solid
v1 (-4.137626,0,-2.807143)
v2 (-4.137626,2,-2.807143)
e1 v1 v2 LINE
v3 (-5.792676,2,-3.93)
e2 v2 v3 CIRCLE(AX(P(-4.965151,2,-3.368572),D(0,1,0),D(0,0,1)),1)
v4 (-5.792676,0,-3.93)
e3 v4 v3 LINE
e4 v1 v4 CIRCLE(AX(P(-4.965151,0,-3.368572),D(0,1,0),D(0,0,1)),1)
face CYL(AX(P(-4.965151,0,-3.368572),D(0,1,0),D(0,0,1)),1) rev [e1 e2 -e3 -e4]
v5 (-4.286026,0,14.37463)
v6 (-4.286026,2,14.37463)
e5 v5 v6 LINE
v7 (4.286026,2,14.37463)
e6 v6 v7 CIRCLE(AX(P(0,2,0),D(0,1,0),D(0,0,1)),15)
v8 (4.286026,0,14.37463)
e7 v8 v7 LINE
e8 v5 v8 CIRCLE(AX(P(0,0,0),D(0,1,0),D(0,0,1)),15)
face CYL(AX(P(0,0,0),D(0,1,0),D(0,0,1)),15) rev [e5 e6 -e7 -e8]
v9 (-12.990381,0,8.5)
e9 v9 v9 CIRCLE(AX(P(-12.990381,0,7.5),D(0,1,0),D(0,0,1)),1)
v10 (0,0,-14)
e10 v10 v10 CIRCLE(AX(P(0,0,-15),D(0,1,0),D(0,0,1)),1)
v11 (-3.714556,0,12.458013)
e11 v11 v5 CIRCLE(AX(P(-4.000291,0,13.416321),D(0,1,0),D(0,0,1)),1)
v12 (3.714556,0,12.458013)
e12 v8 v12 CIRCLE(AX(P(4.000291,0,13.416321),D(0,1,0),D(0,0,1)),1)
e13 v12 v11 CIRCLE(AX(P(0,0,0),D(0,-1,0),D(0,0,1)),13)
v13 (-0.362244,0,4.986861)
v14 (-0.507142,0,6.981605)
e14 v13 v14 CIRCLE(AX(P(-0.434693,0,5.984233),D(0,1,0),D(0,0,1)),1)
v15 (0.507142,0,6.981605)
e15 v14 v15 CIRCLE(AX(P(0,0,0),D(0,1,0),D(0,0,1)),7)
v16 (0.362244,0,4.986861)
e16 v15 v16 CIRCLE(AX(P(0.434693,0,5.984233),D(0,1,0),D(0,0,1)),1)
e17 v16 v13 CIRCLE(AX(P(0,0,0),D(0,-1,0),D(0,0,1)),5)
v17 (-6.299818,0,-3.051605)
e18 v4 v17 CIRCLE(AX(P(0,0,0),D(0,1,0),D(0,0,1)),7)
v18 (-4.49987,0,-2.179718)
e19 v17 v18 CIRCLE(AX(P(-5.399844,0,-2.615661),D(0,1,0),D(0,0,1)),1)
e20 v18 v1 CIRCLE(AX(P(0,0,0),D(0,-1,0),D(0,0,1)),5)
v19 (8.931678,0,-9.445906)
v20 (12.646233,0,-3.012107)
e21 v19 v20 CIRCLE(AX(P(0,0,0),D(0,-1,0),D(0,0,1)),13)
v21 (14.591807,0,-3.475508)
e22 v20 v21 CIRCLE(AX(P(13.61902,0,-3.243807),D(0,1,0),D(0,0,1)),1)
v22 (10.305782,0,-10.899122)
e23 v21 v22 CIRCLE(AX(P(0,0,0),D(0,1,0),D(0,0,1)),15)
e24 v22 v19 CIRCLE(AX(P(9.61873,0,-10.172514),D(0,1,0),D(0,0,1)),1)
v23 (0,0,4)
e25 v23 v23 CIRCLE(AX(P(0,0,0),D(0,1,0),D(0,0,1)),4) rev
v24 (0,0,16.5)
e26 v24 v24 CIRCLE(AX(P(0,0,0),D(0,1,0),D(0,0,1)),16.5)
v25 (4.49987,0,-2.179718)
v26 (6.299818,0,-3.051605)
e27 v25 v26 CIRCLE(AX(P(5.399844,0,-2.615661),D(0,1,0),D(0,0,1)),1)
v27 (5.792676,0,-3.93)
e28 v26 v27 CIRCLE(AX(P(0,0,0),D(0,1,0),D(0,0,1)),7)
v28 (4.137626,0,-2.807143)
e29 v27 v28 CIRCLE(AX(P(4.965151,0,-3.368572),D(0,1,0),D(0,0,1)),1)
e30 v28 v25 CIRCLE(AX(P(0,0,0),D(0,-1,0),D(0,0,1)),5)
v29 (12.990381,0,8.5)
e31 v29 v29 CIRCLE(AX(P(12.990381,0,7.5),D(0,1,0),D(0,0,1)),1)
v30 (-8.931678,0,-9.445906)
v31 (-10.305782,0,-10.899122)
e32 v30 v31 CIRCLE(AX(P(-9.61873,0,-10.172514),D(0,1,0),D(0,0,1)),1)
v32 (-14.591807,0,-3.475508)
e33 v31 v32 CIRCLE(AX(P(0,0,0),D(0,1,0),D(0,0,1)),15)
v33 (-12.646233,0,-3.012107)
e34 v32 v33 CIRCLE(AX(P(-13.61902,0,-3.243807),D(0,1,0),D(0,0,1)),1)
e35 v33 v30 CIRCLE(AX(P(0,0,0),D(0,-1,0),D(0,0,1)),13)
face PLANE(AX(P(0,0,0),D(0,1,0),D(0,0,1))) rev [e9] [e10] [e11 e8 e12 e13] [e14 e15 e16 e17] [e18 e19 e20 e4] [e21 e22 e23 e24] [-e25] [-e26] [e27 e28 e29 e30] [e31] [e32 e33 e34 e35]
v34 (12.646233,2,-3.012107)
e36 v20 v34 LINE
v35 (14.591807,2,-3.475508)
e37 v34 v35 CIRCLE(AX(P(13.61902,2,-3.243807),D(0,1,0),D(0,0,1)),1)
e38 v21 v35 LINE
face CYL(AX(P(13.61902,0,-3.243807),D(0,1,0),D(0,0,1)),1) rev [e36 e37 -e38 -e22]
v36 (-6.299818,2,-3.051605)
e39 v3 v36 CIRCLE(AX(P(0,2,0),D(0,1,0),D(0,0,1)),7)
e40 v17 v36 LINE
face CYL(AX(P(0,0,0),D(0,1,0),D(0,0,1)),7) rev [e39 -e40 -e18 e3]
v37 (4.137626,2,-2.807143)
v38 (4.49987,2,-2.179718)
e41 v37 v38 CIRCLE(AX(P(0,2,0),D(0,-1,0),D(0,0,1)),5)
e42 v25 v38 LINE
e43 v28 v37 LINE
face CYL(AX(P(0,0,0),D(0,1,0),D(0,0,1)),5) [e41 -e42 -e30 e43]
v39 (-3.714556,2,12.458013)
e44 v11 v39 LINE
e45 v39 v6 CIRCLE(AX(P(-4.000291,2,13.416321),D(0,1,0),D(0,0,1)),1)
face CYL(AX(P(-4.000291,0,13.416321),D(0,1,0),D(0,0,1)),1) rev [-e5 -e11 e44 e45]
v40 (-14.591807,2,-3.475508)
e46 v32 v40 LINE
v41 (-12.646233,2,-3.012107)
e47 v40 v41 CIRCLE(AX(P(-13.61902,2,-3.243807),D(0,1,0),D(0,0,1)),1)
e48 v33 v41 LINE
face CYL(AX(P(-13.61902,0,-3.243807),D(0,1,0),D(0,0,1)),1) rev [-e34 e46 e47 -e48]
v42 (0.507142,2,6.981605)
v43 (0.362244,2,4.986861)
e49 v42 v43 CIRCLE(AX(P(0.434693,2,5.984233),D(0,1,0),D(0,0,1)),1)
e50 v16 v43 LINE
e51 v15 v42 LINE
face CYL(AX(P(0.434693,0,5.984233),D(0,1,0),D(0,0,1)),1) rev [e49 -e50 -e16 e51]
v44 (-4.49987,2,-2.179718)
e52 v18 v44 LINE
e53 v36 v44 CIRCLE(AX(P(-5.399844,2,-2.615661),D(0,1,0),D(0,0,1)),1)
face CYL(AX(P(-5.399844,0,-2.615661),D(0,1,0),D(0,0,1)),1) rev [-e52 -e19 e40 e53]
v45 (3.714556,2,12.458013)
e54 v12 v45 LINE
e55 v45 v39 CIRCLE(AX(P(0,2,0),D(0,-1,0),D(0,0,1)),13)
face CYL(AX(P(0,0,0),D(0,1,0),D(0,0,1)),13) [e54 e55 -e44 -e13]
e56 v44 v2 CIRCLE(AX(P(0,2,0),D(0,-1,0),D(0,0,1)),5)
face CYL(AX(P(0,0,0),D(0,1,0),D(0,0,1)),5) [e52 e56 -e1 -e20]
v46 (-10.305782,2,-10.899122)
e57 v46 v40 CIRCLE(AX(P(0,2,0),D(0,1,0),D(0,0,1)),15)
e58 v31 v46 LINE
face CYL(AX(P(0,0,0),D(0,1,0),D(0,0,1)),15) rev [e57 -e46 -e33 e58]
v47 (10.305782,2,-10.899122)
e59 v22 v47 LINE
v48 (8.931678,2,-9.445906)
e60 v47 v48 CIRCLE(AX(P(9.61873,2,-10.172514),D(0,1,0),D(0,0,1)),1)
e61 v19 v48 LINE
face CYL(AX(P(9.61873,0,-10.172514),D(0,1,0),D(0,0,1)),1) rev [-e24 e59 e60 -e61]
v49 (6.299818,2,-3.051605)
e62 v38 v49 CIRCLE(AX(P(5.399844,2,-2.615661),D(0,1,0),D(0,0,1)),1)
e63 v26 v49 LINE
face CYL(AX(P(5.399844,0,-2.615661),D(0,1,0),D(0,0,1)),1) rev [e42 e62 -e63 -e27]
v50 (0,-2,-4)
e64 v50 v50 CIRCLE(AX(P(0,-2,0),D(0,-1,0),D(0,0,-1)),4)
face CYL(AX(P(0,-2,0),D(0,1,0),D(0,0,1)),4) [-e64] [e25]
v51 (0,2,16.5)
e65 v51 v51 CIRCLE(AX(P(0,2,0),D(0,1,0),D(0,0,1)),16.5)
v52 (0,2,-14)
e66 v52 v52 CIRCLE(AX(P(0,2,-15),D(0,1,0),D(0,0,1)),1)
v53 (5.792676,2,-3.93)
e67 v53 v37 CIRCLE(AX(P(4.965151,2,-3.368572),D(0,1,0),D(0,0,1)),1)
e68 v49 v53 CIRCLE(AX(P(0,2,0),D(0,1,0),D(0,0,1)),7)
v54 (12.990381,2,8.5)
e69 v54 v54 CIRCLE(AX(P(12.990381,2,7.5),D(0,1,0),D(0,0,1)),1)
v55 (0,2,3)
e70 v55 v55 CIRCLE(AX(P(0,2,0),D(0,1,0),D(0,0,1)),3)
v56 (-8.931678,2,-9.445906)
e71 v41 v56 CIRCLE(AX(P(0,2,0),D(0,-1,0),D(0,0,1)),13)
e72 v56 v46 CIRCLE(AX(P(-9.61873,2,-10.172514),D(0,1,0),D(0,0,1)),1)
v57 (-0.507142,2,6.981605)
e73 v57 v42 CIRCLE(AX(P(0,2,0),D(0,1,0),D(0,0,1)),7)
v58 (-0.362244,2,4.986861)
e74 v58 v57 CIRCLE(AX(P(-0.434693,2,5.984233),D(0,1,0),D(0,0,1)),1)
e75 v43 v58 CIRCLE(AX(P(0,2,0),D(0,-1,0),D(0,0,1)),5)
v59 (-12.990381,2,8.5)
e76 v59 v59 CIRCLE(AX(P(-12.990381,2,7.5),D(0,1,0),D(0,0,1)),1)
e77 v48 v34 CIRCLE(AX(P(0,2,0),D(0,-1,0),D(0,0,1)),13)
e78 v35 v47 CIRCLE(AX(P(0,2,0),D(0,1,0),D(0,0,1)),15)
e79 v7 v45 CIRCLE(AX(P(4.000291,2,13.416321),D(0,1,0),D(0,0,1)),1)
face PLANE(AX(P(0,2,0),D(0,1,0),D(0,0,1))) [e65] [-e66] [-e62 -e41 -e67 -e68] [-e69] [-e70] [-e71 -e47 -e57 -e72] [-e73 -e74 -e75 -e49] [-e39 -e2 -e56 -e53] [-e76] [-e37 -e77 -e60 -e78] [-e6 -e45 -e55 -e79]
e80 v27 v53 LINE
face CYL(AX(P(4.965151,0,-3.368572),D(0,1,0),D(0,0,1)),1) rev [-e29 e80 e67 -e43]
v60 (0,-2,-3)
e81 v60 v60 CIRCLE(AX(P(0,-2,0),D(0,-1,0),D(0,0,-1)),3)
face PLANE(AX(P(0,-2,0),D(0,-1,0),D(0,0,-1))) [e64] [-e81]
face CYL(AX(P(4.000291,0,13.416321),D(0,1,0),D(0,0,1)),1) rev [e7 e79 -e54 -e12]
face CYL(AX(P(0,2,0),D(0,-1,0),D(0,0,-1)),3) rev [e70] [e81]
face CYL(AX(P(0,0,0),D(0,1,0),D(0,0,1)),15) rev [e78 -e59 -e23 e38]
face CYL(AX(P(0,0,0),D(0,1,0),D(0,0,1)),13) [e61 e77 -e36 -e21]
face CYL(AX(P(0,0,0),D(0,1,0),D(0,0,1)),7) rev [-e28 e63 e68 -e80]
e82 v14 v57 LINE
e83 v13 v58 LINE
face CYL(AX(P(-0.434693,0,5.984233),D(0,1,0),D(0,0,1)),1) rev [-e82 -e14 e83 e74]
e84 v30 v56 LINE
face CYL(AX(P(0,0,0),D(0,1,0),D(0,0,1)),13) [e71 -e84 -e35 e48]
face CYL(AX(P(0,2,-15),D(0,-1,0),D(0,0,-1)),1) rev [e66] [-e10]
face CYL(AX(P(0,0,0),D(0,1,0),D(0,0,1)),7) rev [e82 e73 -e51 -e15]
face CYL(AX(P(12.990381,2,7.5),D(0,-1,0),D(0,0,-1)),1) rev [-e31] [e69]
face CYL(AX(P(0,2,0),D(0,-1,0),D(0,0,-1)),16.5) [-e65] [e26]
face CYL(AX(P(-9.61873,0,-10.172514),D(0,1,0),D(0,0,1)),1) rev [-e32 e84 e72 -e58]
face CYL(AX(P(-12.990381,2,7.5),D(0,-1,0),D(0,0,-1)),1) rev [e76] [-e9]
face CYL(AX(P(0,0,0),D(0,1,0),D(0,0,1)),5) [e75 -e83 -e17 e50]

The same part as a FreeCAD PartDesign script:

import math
import FreeCAD as App
import Part
import Sketcher

doc = App.newDocument("Part")
body = doc.addObject("PartDesign::Body", "Body")

sketch1 = doc.addObject("Sketcher::SketchObject", "Sketch")
body.addObject(sketch1)
sketch1.AttachmentSupport = (doc.XZ_Plane, [""])
sketch1.MapMode = "FlatFace"
sketch1.addGeometry([
    Part.Circle(App.Vector(0, 0, 0), App.Vector(0, 0, 1), 16.5),
    Part.Circle(App.Vector(0, -15, 0), App.Vector(0, 0, 1), 1),
    Part.Circle(App.Vector(-13, 7.5, 0), App.Vector(0, 0, 1), 1),
    Part.Circle(App.Vector(0, 0, 0), App.Vector(0, 0, 1), 3),
    Part.Circle(App.Vector(13, 7.5, 0), App.Vector(0, 0, 1), 1),
], False)
sketch1.addConstraint([
    Sketcher.Constraint("Coincident", 0, 3, -1, 1),
    Sketcher.Constraint("Coincident", 3, 3, -1, 1),
    Sketcher.Constraint("Equal", 1, 2),
    Sketcher.Constraint("Equal", 2, 4),
    Sketcher.Constraint("Symmetric", 2, 3, 4, 3, -2),
    Sketcher.Constraint("PointOnObject", 1, 3, -2),
    Sketcher.Constraint("Diameter", 0, 33.0),
    Sketcher.Constraint("Diameter", 1, 2.0),
    Sketcher.Constraint("Diameter", 3, 6.0),
    Sketcher.Constraint("DistanceY", 1, 3, -1, 1, 15.0),
    Sketcher.Constraint("DistanceY", -1, 1, 2, 3, 7.5),
    Sketcher.Constraint("DistanceX", 2, 3, -1, 1, 12.990381),
])
pad1 = doc.addObject("PartDesign::Pad", "Pad")
body.addObject(pad1)
pad1.Profile = sketch1
pad1.Length = 2
pad1.Reversed = True

sketch2 = doc.addObject("Sketcher::SketchObject", "Sketch001")
body.addObject(sketch2)
sketch2.AttachmentSupport = (doc.XZ_Plane, [""])
sketch2.MapMode = "FlatFace"
sketch2.AttachmentOffset = App.Placement(App.Vector(0, 0, 2), App.Rotation())
sketch2.addGeometry([
    Part.Circle(App.Vector(0, 0, 0), App.Vector(0, 0, 1), 4),
    Part.Circle(App.Vector(0, 0, 0), App.Vector(0, 0, 1), 3),
], False)
sketch2.addConstraint([
    Sketcher.Constraint("Coincident", 0, 3, -1, 1),
    Sketcher.Constraint("Coincident", 1, 3, -1, 1),
    Sketcher.Constraint("Diameter", 0, 8.0),
    Sketcher.Constraint("Diameter", 1, 6.0),
])
pad2 = doc.addObject("PartDesign::Pad", "Pad001")
body.addObject(pad2)
pad2.Profile = sketch2
pad2.Length = 2
pad2.Reversed = True

sketch3 = doc.addObject("Sketcher::SketchObject", "Sketch002")
body.addObject(sketch3)
sketch3.AttachmentSupport = (doc.XZ_Plane, [""])
sketch3.MapMode = "FlatFace"
sketch3.AttachmentOffset = App.Placement(App.Vector(0, 0, -2), App.Rotation())
sketch3.addGeometry([
    Part.ArcOfCircle(Part.Circle(App.Vector(0, 0, 0), App.Vector(0, 0, 1), 15), math.radians(-47), math.radians(-13)),
    Part.ArcOfCircle(Part.Circle(App.Vector(9.6, -10.2, 0), App.Vector(0, 0, 1), 1), math.radians(133), math.radians(313)),
    Part.ArcOfCircle(Part.Circle(App.Vector(0, 0, 0), App.Vector(0, 0, 1), 13), math.radians(-47), math.radians(-13)),
    Part.ArcOfCircle(Part.Circle(App.Vector(13.6, -3.2, 0), App.Vector(0, 0, 1), 1), math.radians(-13), math.radians(167)),
    Part.ArcOfCircle(Part.Circle(App.Vector(0, 0, 0), App.Vector(0, 0, 1), 7), math.radians(-34.15), math.radians(-25.85)),
    Part.ArcOfCircle(Part.Circle(App.Vector(5, -3.4, 0), App.Vector(0, 0, 1), 1), math.radians(146), math.radians(326)),
    Part.ArcOfCircle(Part.Circle(App.Vector(0, 0, 0), App.Vector(0, 0, 1), 5), math.radians(-34.15), math.radians(-25.85)),
    Part.ArcOfCircle(Part.Circle(App.Vector(5.4, -2.6, 0), App.Vector(0, 0, 1), 1), math.radians(-26), math.radians(154)),
    Part.ArcOfCircle(Part.Circle(App.Vector(0, 0, 0), App.Vector(0, 0, 1), 15), math.radians(73), math.radians(107)),
    Part.ArcOfCircle(Part.Circle(App.Vector(4, 13.4, 0), App.Vector(0, 0, 1), 1), math.radians(-107), math.radians(73)),
    Part.ArcOfCircle(Part.Circle(App.Vector(0, 0, 0), App.Vector(0, 0, 1), 13), math.radians(73), math.radians(107)),
    Part.ArcOfCircle(Part.Circle(App.Vector(-4, 13.4, 0), App.Vector(0, 0, 1), 1), math.radians(107), math.radians(287)),
    Part.ArcOfCircle(Part.Circle(App.Vector(0, 0, 0), App.Vector(0, 0, 1), 7), math.radians(85.85), math.radians(94.15)),
    Part.ArcOfCircle(Part.Circle(App.Vector(0.4, 6, 0), App.Vector(0, 0, 1), 1), math.radians(-94), math.radians(86)),
    Part.ArcOfCircle(Part.Circle(App.Vector(0, 0, 0), App.Vector(0, 0, 1), 5), math.radians(85.85), math.radians(94.15)),
    Part.ArcOfCircle(Part.Circle(App.Vector(-0.4, 6, 0), App.Vector(0, 0, 1), 1), math.radians(94), math.radians(274)),
    Part.ArcOfCircle(Part.Circle(App.Vector(0, 0, 0), App.Vector(0, 0, 1), 15), math.radians(-167), math.radians(-133)),
    Part.ArcOfCircle(Part.Circle(App.Vector(-13.6, -3.2, 0), App.Vector(0, 0, 1), 1), math.radians(13), math.radians(193)),
    Part.ArcOfCircle(Part.Circle(App.Vector(0, 0, 0), App.Vector(0, 0, 1), 13), math.radians(-167), math.radians(-133)),
    Part.ArcOfCircle(Part.Circle(App.Vector(-9.6, -10.2, 0), App.Vector(0, 0, 1), 1), math.radians(-133), math.radians(47)),
    Part.ArcOfCircle(Part.Circle(App.Vector(0, 0, 0), App.Vector(0, 0, 1), 7), math.radians(-154.15), math.radians(-145.85)),
    Part.ArcOfCircle(Part.Circle(App.Vector(-5.4, -2.6, 0), App.Vector(0, 0, 1), 1), math.radians(26), math.radians(206)),
    Part.ArcOfCircle(Part.Circle(App.Vector(0, 0, 0), App.Vector(0, 0, 1), 5), math.radians(-154.15), math.radians(-145.85)),
    Part.ArcOfCircle(Part.Circle(App.Vector(-5, -3.4, 0), App.Vector(0, 0, 1), 1), math.radians(-146), math.radians(34)),
], False)
sketch3.addConstraint([
    Sketcher.Constraint("Tangent", 0, 1, 1, 2),
    Sketcher.Constraint("Tangent", 1, 1, 2, 1),
    Sketcher.Constraint("Tangent", 2, 2, 3, 2),
    Sketcher.Constraint("Tangent", 3, 1, 0, 2),
    Sketcher.Constraint("Tangent", 4, 1, 5, 2),
    Sketcher.Constraint("Tangent", 5, 1, 6, 1),
    Sketcher.Constraint("Tangent", 6, 2, 7, 2),
    Sketcher.Constraint("Tangent", 7, 1, 4, 2),
    Sketcher.Constraint("Tangent", 8, 1, 9, 2),
    Sketcher.Constraint("Tangent", 9, 1, 10, 1),
    Sketcher.Constraint("Tangent", 10, 2, 11, 2),
    Sketcher.Constraint("Tangent", 11, 1, 8, 2),
    Sketcher.Constraint("Tangent", 12, 1, 13, 2),
    Sketcher.Constraint("Tangent", 13, 1, 14, 1),
    Sketcher.Constraint("Tangent", 14, 2, 15, 2),
    Sketcher.Constraint("Tangent", 15, 1, 12, 2),
    Sketcher.Constraint("Tangent", 16, 1, 17, 2),
    Sketcher.Constraint("Tangent", 17, 1, 18, 1),
    Sketcher.Constraint("Tangent", 18, 2, 19, 2),
    Sketcher.Constraint("Tangent", 19, 1, 16, 2),
    Sketcher.Constraint("Tangent", 20, 1, 21, 2),
    Sketcher.Constraint("Tangent", 21, 1, 22, 1),
    Sketcher.Constraint("Tangent", 22, 2, 23, 2),
    Sketcher.Constraint("Tangent", 23, 1, 20, 2),
    Sketcher.Constraint("Coincident", 0, 3, -1, 1),
    Sketcher.Constraint("Coincident", 2, 3, -1, 1),
    Sketcher.Constraint("Coincident", 4, 3, -1, 1),
    Sketcher.Constraint("Coincident", 6, 3, -1, 1),
    Sketcher.Constraint("Coincident", 8, 3, -1, 1),
    Sketcher.Constraint("Coincident", 10, 3, -1, 1),
    Sketcher.Constraint("Coincident", 12, 3, -1, 1),
    Sketcher.Constraint("Coincident", 14, 3, -1, 1),
    Sketcher.Constraint("Coincident", 16, 3, -1, 1),
    Sketcher.Constraint("Coincident", 18, 3, -1, 1),
    Sketcher.Constraint("Coincident", 20, 3, -1, 1),
    Sketcher.Constraint("Coincident", 22, 3, -1, 1),
    Sketcher.Constraint("Equal", 3, 5),
    Sketcher.Constraint("Equal", 0, 8),
    Sketcher.Constraint("Equal", 7, 9),
    Sketcher.Constraint("Equal", 4, 12),
    Sketcher.Constraint("Equal", 11, 13),
    Sketcher.Constraint("Equal", 8, 16),
    Sketcher.Constraint("Equal", 15, 17),
    Sketcher.Constraint("Equal", 12, 20),
    Sketcher.Constraint("Equal", 19, 21),
    Sketcher.Constraint("Horizontal", 9, 3, 11, 3),
    Sketcher.Constraint("Horizontal", 13, 3, 15, 3),
    Sketcher.Constraint("Horizontal", 3, 3, 17, 3),
    Sketcher.Constraint("Horizontal", 1, 3, 19, 3),
    Sketcher.Constraint("Horizontal", 7, 3, 21, 3),
    Sketcher.Constraint("Horizontal", 5, 3, 23, 3),
    Sketcher.Constraint("Radius", 0, 15.0),
    Sketcher.Constraint("Radius", 1, 1.0),
    Sketcher.Constraint("Radius", 4, 7.0),
    Sketcher.Constraint("DistanceY", 4, 1, -1, 1, 3.93),
    Sketcher.Constraint("DistanceX", 4, 1, 1, 1, 3.139001),
    Sketcher.Constraint("DistanceY", 1, 1, 3, 3, 6.202098),
    Sketcher.Constraint("DistanceY", 18, 2, 20, 1, 6.394301),
    Sketcher.Constraint("DistanceX", -1, 1, 9, 3, 4.000291),
    Sketcher.Constraint("DistanceX", -1, 1, 12, 1, 0.507142),
])
pocket1 = doc.addObject("PartDesign::Pocket", "Pocket")
body.addObject(pocket1)
pocket1.Profile = sketch3
pocket1.Length = 2
pocket1.Reversed = True

doc.recompute()
